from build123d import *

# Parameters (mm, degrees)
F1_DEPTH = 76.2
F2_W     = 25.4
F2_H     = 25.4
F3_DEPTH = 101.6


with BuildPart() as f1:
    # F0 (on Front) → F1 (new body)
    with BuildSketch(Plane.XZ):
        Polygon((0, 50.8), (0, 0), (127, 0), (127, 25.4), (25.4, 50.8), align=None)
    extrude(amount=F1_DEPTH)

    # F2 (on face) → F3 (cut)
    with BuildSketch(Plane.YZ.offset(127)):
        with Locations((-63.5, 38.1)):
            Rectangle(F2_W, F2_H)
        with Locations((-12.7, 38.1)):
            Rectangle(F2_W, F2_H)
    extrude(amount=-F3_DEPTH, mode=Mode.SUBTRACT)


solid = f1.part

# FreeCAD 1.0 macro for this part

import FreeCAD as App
import Part
import Sketcher
Q = App.Units.Quantity


def add_polygon(sketch, points):
    """Adds a closed chain of lines whose ends are joined by coincident constraints."""
    first, n = sketch.GeometryCount, len(points)
    for a, b in zip(points, points[1:] + points[:1]):
        sketch.addGeometry(Part.LineSegment(App.Vector(*a, 0), App.Vector(*b, 0)), False)
    for i in range(n):
        sketch.addConstraint(Sketcher.Constraint("Coincident", first + i, 2, first + (i + 1) % n, 1))

doc = App.newDocument("Part")
params = doc.addObject("Spreadsheet::Sheet", "Params")
for row, (alias, value) in enumerate([
    ("sketch1_width", "5 in"),
    ("sketch1_width2", "1 in"),
    ("sketch1_height", "2 in"),
    ("pad1_length", "3 in"),
    ("sketch2_width", "1 in"),
    ("pocket1_length", "4 in"),
], start=1):
    params.set(f"A{row}", alias)
    params.set(f"B{row}", "=" + value)
    params.setAlias(f"B{row}", alias)

body = doc.addObject("PartDesign::Body", "Body")

# Sketch on XZ plane
sketch1 = doc.addObject("Sketcher::SketchObject", "Sketch")
body.addObject(sketch1)
sketch1.AttachmentSupport = (doc.XZ_Plane, [""])
sketch1.MapMode = "FlatFace"
add_polygon(sketch1, [(0, 51), (0, 0), (127, 0), (127, 25), (25, 51)])  # lines 0-4
sketch1.addConstraint(Sketcher.Constraint("Vertical", 0))
sketch1.addConstraint(Sketcher.Constraint("Horizontal", 1))
sketch1.addConstraint(Sketcher.Constraint("Vertical", 2))
sketch1.addConstraint(Sketcher.Constraint("Horizontal", 4))
sketch1.addConstraint(Sketcher.Constraint("Coincident", 0, 2, -1, 1))
sketch1.addConstraint(Sketcher.Constraint("Equal", 4, 2))
sketch1.addConstraint(Sketcher.Constraint("DistanceX", 1, 1, 1, 2, Q("5 in")))
sketch1.addConstraint(Sketcher.Constraint("DistanceX", 4, 2, 4, 1, Q("1 in")))
sketch1.addConstraint(Sketcher.Constraint("DistanceY", 0, 2, 0, 1, Q("2 in")))
sketch1.setExpression("Constraints[11]", "Params.sketch1_width")
sketch1.setExpression("Constraints[12]", "Params.sketch1_width2")
sketch1.setExpression("Constraints[13]", "Params.sketch1_height")
pad1 = doc.addObject("PartDesign::Pad", "Pad")
body.addObject(pad1)
pad1.Profile = sketch1
pad1.setExpression("Length", "Params.pad1_length")

# Sketch on YZ plane
sketch2 = doc.addObject("Sketcher::SketchObject", "Sketch001")
body.addObject(sketch2)
sketch2.AttachmentSupport = (doc.YZ_Plane, [""])
sketch2.MapMode = "FlatFace"
sketch2.AttachmentOffset = App.Placement(App.Vector(0, 0, 5 * 25.4), App.Rotation())
add_polygon(sketch2, [(-76, 51), (-76, 25), (-51, 25), (-51, 51)])  # lines 0-3
add_polygon(sketch2, [(-25, 51), (-25, 25), (0, 25), (0, 51)])  # lines 4-7
sketch2.addConstraint(Sketcher.Constraint("Vertical", 0))
sketch2.addConstraint(Sketcher.Constraint("Horizontal", 1))
sketch2.addConstraint(Sketcher.Constraint("Vertical", 2))
sketch2.addConstraint(Sketcher.Constraint("Horizontal", 3))
sketch2.addConstraint(Sketcher.Constraint("Vertical", 4))
sketch2.addConstraint(Sketcher.Constraint("Horizontal", 5))
sketch2.addConstraint(Sketcher.Constraint("Vertical", 6))
sketch2.addConstraint(Sketcher.Constraint("Horizontal", 7))
sketch2.addConstraint(Sketcher.Constraint("PointOnObject", 5, 2, -2))
sketch2.addConstraint(Sketcher.Constraint("Horizontal", 1, 2, 4, 2))
sketch2.addConstraint(Sketcher.Constraint("Horizontal", 3, 2, 6, 2))
sketch2.addConstraint(Sketcher.Constraint("Equal", 3, 5))
sketch2.addConstraint(Sketcher.Constraint("Equal", 7, 0))
sketch2.addConstraint(Sketcher.Constraint("DistanceX", 1, 1, 1, 2, Q("1 in")))
sketch2.addConstraint(Sketcher.Constraint("DistanceX", 0, 2, -1, 1, Q("3 in")))
sketch2.addConstraint(Sketcher.Constraint("DistanceY", -1, 1, 0, 2, Q("1 in")))
sketch2.setExpression("Constraints[21]", "Params.sketch2_width")
pocket1 = doc.addObject("PartDesign::Pocket", "Pocket")
body.addObject(pocket1)
pocket1.Profile = sketch2
pocket1.setExpression("Length", "Params.pocket1_length")

doc.recompute()
